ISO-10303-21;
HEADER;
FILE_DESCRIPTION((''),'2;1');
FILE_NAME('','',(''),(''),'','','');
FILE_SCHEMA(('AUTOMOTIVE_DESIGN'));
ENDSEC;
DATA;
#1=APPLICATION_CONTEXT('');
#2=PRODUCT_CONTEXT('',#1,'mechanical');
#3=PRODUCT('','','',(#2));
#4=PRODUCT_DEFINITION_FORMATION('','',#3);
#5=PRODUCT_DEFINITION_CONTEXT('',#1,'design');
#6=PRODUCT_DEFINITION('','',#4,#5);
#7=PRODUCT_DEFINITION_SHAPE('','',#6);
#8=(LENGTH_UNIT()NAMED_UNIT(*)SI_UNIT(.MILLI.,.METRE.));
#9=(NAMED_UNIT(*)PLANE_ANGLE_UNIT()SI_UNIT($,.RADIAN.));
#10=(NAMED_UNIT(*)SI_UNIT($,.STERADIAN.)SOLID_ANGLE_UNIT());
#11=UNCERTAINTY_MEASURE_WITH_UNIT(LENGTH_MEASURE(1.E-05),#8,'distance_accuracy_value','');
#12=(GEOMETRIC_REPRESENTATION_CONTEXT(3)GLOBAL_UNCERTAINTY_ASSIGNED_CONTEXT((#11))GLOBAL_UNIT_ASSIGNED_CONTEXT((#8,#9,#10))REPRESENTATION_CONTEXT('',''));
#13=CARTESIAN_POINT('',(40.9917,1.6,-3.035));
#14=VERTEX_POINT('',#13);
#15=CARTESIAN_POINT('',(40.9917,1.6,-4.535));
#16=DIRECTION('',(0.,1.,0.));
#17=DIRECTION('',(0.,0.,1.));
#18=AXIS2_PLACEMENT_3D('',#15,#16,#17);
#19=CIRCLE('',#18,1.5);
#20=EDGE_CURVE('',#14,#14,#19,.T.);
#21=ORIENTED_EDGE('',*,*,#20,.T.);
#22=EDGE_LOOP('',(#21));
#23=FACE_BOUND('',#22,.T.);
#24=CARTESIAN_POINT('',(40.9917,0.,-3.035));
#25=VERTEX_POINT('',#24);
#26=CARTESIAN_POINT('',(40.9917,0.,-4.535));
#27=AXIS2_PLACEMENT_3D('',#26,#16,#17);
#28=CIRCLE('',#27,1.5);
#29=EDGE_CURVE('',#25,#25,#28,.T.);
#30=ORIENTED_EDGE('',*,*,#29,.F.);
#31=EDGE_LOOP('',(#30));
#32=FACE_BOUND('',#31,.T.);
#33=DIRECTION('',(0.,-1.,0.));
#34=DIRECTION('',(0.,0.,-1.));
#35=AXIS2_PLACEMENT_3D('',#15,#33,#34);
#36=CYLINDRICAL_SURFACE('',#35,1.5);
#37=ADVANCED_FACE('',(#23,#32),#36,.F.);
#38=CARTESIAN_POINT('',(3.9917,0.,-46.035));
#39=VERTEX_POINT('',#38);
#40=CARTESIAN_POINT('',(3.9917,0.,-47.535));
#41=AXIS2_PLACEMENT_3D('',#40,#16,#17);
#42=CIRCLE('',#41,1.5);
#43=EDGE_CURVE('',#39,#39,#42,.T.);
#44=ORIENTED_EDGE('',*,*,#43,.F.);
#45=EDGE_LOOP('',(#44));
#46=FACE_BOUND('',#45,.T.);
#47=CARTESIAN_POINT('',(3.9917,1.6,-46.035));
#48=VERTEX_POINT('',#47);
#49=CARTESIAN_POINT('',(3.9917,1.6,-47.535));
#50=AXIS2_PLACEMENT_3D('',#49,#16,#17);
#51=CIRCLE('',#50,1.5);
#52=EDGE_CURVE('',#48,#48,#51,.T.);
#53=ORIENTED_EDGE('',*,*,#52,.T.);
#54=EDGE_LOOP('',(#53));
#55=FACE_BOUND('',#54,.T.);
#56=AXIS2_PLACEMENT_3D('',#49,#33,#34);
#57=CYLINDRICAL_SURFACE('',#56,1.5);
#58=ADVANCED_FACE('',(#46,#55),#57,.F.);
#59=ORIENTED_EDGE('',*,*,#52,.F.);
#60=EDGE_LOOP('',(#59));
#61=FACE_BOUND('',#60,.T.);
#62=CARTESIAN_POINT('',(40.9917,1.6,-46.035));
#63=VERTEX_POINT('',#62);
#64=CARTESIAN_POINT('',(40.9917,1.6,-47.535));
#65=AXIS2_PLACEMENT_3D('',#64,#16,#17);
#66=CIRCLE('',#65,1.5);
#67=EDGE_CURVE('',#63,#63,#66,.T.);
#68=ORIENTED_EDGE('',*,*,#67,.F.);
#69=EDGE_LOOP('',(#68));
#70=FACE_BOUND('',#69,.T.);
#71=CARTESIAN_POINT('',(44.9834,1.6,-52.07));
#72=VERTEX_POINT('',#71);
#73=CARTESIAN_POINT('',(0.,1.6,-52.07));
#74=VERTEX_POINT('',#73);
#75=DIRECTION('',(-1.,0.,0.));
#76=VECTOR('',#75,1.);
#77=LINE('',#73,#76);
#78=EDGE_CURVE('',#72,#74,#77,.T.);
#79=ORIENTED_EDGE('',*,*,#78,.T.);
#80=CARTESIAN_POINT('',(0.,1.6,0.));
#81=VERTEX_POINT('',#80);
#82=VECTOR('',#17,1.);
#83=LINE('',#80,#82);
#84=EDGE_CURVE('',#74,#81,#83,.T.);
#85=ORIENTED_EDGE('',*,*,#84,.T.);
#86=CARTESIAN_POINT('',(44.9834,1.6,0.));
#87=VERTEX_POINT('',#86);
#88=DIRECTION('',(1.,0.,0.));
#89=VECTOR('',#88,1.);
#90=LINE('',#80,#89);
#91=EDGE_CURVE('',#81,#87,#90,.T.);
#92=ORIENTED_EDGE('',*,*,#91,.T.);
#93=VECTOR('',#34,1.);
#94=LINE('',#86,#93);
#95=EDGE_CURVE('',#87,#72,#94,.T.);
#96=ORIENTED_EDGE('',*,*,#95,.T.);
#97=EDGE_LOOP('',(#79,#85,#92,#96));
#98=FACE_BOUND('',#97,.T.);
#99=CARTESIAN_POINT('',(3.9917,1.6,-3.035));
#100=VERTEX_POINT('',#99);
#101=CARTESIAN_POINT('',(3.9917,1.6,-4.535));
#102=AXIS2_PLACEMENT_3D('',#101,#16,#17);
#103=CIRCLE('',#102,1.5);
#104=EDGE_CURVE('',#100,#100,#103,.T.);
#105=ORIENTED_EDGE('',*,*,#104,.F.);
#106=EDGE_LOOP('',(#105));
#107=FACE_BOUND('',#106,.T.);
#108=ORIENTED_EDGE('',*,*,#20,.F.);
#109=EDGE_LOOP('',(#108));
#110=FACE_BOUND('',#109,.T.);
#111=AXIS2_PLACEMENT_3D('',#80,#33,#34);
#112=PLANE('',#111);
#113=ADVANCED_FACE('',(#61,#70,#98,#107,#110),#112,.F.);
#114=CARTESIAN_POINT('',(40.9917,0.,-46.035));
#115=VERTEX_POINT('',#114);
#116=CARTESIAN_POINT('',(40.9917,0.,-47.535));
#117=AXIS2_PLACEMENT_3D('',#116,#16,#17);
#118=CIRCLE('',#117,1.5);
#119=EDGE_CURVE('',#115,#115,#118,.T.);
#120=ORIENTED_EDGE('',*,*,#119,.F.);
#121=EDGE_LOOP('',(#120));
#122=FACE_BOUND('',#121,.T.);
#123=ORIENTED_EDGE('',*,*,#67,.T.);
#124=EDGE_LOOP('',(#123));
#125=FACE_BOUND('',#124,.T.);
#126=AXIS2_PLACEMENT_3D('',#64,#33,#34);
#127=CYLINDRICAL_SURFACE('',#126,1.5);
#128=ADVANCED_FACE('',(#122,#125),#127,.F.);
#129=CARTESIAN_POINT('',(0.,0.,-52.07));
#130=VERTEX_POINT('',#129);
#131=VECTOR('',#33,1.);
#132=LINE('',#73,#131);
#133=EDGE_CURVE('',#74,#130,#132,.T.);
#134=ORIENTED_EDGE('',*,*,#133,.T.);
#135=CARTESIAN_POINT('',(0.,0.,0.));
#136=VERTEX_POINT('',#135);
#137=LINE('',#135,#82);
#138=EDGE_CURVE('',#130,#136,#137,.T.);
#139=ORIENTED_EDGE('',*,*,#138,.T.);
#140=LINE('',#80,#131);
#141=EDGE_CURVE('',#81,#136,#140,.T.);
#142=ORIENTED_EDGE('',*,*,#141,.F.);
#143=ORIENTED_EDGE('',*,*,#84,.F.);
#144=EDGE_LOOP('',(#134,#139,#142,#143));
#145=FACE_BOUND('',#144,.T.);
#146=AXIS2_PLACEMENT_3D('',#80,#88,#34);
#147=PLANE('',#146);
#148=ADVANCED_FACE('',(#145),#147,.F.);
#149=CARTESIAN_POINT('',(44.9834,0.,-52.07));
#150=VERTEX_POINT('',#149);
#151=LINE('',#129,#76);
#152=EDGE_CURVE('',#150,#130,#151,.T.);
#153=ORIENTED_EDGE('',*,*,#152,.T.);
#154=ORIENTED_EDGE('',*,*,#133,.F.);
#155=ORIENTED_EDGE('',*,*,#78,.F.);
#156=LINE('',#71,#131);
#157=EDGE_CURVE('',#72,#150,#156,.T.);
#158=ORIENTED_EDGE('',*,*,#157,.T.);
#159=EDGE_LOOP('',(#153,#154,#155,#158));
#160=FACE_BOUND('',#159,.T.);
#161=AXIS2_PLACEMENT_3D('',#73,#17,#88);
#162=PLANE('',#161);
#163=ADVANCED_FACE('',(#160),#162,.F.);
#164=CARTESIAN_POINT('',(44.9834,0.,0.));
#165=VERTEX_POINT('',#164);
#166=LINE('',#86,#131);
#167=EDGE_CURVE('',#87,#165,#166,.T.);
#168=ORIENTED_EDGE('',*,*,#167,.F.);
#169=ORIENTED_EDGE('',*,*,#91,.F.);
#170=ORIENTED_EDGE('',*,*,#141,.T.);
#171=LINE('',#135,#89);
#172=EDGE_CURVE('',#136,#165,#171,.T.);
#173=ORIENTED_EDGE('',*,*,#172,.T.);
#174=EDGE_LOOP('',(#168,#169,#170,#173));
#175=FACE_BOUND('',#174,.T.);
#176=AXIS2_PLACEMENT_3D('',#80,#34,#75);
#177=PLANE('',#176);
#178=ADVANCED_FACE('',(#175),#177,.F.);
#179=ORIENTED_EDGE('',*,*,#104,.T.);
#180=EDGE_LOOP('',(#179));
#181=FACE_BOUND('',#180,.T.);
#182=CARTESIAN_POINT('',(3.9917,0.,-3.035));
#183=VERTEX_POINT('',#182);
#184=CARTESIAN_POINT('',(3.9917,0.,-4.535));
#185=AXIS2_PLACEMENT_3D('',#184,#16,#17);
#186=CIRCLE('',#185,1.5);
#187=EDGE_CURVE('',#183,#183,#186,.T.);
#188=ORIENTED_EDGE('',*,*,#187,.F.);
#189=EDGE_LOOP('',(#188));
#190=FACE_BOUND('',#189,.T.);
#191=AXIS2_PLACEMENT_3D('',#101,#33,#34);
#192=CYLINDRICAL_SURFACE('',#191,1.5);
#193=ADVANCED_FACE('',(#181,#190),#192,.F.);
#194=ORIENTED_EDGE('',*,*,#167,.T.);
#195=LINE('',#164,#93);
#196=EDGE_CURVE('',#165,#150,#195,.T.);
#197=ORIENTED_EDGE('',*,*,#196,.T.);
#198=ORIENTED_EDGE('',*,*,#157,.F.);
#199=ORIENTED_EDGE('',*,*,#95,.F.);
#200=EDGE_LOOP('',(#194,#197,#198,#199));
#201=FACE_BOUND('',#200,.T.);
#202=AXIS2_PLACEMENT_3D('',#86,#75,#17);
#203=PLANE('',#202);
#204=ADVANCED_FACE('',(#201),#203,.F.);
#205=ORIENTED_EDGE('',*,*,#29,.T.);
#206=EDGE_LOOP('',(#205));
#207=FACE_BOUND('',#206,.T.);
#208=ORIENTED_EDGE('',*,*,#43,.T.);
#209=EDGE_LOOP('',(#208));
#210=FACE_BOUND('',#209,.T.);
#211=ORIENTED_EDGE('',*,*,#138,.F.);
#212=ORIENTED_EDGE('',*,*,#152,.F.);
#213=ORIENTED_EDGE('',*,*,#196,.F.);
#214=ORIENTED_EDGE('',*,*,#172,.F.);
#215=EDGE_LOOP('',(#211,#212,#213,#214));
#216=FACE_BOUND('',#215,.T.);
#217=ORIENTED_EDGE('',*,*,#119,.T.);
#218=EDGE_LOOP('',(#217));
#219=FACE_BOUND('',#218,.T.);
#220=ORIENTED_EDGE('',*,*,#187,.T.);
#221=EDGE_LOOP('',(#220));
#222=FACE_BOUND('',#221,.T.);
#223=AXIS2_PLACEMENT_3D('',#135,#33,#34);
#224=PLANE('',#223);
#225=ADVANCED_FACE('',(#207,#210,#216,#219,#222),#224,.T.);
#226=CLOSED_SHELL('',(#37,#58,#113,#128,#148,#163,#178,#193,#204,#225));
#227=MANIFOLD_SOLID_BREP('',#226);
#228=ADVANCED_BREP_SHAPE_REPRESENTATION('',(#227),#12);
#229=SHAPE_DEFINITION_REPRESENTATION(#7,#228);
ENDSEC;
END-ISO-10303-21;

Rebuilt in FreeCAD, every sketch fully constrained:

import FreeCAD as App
import Part
import Sketcher

doc = App.newDocument("Part")
body = doc.addObject("PartDesign::Body", "Body")

# Sketch on XZ plane
sketch1 = doc.addObject("Sketcher::SketchObject", "Sketch")
body.addObject(sketch1)
sketch1.AttachmentSupport = (doc.XZ_Plane, [""])
sketch1.MapMode = "FlatFace"
sketch1.addGeometry(Part.LineSegment(App.Vector(0, -52.1, 0), App.Vector(0, 0, 0)), False)
sketch1.addGeometry(Part.LineSegment(App.Vector(0, 0, 0), App.Vector(45, 0, 0)), False)
sketch1.addGeometry(Part.LineSegment(App.Vector(45, 0, 0), App.Vector(45, -52.1, 0)), False)
sketch1.addGeometry(Part.LineSegment(App.Vector(45, -52.1, 0), App.Vector(0, -52.1, 0)), False)
sketch1.addGeometry(Part.Circle(App.Vector(4, -4.5, 0), App.Vector(0, 0, 1), 1.5), False)
sketch1.addGeometry(Part.Circle(App.Vector(41, -4.5, 0), App.Vector(0, 0, 1), 1.5), False)
sketch1.addGeometry(Part.Circle(App.Vector(4, -47.5, 0), App.Vector(0, 0, 1), 1.5), False)
sketch1.addGeometry(Part.Circle(App.Vector(41, -47.5, 0), App.Vector(0, 0, 1), 1.5), False)
sketch1.addConstraint(Sketcher.Constraint("Coincident", 0, 2, 1, 1))
sketch1.addConstraint(Sketcher.Constraint("Coincident", 1, 2, 2, 1))
sketch1.addConstraint(Sketcher.Constraint("Coincident", 2, 2, 3, 1))
sketch1.addConstraint(Sketcher.Constraint("Coincident", 3, 2, 0, 1))
sketch1.addConstraint(Sketcher.Constraint("Vertical", 0))
sketch1.addConstraint(Sketcher.Constraint("Horizontal", 1))
sketch1.addConstraint(Sketcher.Constraint("Vertical", 2))
sketch1.addConstraint(Sketcher.Constraint("Horizontal", 3))
sketch1.addConstraint(Sketcher.Constraint("Coincident", 0, 2, -1, 1))
sketch1.addConstraint(Sketcher.Constraint("Equal", 4, 5))
sketch1.addConstraint(Sketcher.Constraint("Equal", 5, 6))
sketch1.addConstraint(Sketcher.Constraint("Equal", 6, 7))
sketch1.addConstraint(Sketcher.Constraint("Horizontal", 4, 3, 5, 3))
sketch1.addConstraint(Sketcher.Constraint("Horizontal", 6, 3, 7, 3))
sketch1.addConstraint(Sketcher.Constraint("Vertical", 4, 3, 6, 3))
sketch1.addConstraint(Sketcher.Constraint("Vertical", 5, 3, 7, 3))
sketch1.addConstraint(Sketcher.Constraint("Diameter", 4, 3.0))
sketch1.addConstraint(Sketcher.Constraint("DistanceX", 4, 3, 5, 3, 37.0))
sketch1.addConstraint(Sketcher.Constraint("DistanceY", 6, 3, 4, 3, 43.0))
sketch1.addConstraint(Sketcher.Constraint("DistanceY", 0, 1, 0, 2, 52.07))
sketch1.addConstraint(Sketcher.Constraint("DistanceX", 1, 1, 1, 2, 44.9834))
sketch1.addConstraint(Sketcher.Constraint("DistanceY", 4, 3, -1, 1, 4.535))
sketch1.addConstraint(Sketcher.Constraint("DistanceX", -1, 1, 4, 3, 3.9917))
pad1 = doc.addObject("PartDesign::Pad", "Pad")
body.addObject(pad1)
pad1.Profile = sketch1
pad1.Length = 1.6
pad1.Reversed = True

doc.recompute()
